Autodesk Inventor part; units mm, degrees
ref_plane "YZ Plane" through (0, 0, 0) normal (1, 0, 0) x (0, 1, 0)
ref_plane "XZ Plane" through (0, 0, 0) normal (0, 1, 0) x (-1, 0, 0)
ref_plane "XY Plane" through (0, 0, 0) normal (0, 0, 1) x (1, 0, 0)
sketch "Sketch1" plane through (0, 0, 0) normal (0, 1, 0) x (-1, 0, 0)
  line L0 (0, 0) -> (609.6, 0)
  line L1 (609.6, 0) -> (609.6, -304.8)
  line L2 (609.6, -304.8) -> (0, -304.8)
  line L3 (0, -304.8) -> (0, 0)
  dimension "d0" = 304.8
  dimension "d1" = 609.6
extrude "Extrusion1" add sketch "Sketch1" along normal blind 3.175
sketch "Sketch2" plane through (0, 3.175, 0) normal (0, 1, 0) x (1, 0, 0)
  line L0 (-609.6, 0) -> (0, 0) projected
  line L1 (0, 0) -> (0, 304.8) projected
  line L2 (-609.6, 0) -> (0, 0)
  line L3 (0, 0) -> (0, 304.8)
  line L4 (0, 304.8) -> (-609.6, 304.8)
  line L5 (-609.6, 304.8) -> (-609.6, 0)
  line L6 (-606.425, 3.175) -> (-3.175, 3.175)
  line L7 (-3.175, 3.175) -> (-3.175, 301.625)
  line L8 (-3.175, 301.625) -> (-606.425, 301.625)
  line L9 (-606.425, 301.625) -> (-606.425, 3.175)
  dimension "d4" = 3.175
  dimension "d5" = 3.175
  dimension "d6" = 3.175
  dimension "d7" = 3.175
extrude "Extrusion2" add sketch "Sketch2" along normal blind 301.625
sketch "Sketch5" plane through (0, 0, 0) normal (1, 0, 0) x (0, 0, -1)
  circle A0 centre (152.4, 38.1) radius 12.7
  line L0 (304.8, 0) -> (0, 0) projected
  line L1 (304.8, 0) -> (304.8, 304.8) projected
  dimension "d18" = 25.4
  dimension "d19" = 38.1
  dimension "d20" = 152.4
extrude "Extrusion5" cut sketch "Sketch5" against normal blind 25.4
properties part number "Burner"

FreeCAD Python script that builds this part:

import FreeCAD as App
import Part
import Sketcher

V = App.Vector
Q = App.Units.Quantity

doc = App.newDocument("Part")
body = doc.addObject("PartDesign::Body", "Body")

# Sketch on XZ plane
sketch1 = body.newObject("Sketcher::SketchObject", "Sketch")
sketch1.AttachmentSupport = (doc.getObject("XZ_Plane"), [""])
sketch1.MapMode = "FlatFace"
sketch1.addGeometry(Part.LineSegment(V(-609.6, 0, 0), V(0, 0, 0)), False)
sketch1.addGeometry(Part.LineSegment(V(0, 0, 0), V(0, -304.8, 0)), False)
sketch1.addGeometry(Part.LineSegment(V(0, -304.8, 0), V(-609.6, -304.8, 0)), False)
sketch1.addGeometry(Part.LineSegment(V(-609.6, -304.8, 0), V(-609.6, 0, 0)), False)
sketch1.addConstraint(Sketcher.Constraint("Coincident", 0, 2, 1, 1))
sketch1.addConstraint(Sketcher.Constraint("Coincident", 1, 2, 2, 1))
sketch1.addConstraint(Sketcher.Constraint("Coincident", 2, 2, 3, 1))
sketch1.addConstraint(Sketcher.Constraint("Coincident", 3, 2, 0, 1))
sketch1.addConstraint(Sketcher.Constraint("Horizontal", 0))
sketch1.addConstraint(Sketcher.Constraint("Vertical", 1))
sketch1.addConstraint(Sketcher.Constraint("Horizontal", 2))
sketch1.addConstraint(Sketcher.Constraint("Vertical", 3))
sketch1.addConstraint(Sketcher.Constraint("Coincident", 0, 2, -1, 1))
sketch1.addConstraint(Sketcher.Constraint("DistanceX", 0, 1, 0, 2, Q("24 in")))
sketch1.addConstraint(Sketcher.Constraint("DistanceY", 1, 2, 1, 1, Q("12 in")))
pad1 = body.newObject("PartDesign::Pad", "Pad")
pad1.Profile = sketch1
pad1.Length = Q("0.125 in")
pad1.Reversed = True

# Sketch on XZ plane
sketch2 = body.newObject("Sketcher::SketchObject", "Sketch001")
sketch2.AttachmentSupport = (doc.getObject("XZ_Plane"), [""])
sketch2.MapMode = "FlatFace"
sketch2.AttachmentOffset = App.Placement(V(0, 0, -0.125 * 25.4), App.Rotation())
sketch2.addGeometry(Part.LineSegment(V(-609.6, -304.8, 0), V(-609.6, 0, 0)), False)
sketch2.addGeometry(Part.LineSegment(V(-609.6, 0, 0), V(0, 0, 0)), False)
sketch2.addGeometry(Part.LineSegment(V(0, 0, 0), V(0, -304.8, 0)), False)
sketch2.addGeometry(Part.LineSegment(V(0, -304.8, 0), V(-609.6, -304.8, 0)), False)
sketch2.addGeometry(Part.LineSegment(V(-3.175, -3.175, 0), V(-606.425, -3.175, 0)), False)
sketch2.addGeometry(Part.LineSegment(V(-606.425, -3.175, 0), V(-606.425, -301.625, 0)), False)
sketch2.addGeometry(Part.LineSegment(V(-606.425, -301.625, 0), V(-3.175, -301.625, 0)), False)
sketch2.addGeometry(Part.LineSegment(V(-3.175, -301.625, 0), V(-3.175, -3.175, 0)), False)
sketch2.addConstraint(Sketcher.Constraint("Coincident", 0, 2, 1, 1))
sketch2.addConstraint(Sketcher.Constraint("Coincident", 1, 2, 2, 1))
sketch2.addConstraint(Sketcher.Constraint("Coincident", 2, 2, 3, 1))
sketch2.addConstraint(Sketcher.Constraint("Coincident", 3, 2, 0, 1))
sketch2.addConstraint(Sketcher.Constraint("Coincident", 4, 2, 5, 1))
sketch2.addConstraint(Sketcher.Constraint("Coincident", 5, 2, 6, 1))
sketch2.addConstraint(Sketcher.Constraint("Coincident", 6, 2, 7, 1))
sketch2.addConstraint(Sketcher.Constraint("Coincident", 7, 2, 4, 1))
sketch2.addConstraint(Sketcher.Constraint("Vertical", 0))
sketch2.addConstraint(Sketcher.Constraint("Horizontal", 1))
sketch2.addConstraint(Sketcher.Constraint("Vertical", 2))
sketch2.addConstraint(Sketcher.Constraint("Horizontal", 3))
sketch2.addConstraint(Sketcher.Constraint("Horizontal", 4))
sketch2.addConstraint(Sketcher.Constraint("Vertical", 5))
sketch2.addConstraint(Sketcher.Constraint("Horizontal", 6))
sketch2.addConstraint(Sketcher.Constraint("Vertical", 7))
sketch2.addConstraint(Sketcher.Constraint("Coincident", 1, 2, -1, 1))
sketch2.addConstraint(Sketcher.Constraint("DistanceX", 1, 1, 1, 2, Q("24 in")))
sketch2.addConstraint(Sketcher.Constraint("DistanceY", 0, 1, 0, 2, Q("12 in")))
sketch2.addConstraint(Sketcher.Constraint("DistanceY", 4, 2, -1, 1, Q("0.125 in")))
sketch2.addConstraint(Sketcher.Constraint("DistanceX", 6, 2, -1, 1, Q("0.125 in")))
sketch2.addConstraint(Sketcher.Constraint("DistanceX", 0, 2, 4, 2, Q("0.125 in")))
sketch2.addConstraint(Sketcher.Constraint("DistanceY", 3, 2, 5, 2, Q("0.125 in")))
pad2 = body.newObject("PartDesign::Pad", "Pad001")
pad2.Profile = sketch2
pad2.Length = Q("11.875 in")
pad2.Reversed = True

# Sketch on YZ plane
sketch3 = body.newObject("Sketcher::SketchObject", "Sketch002")
sketch3.AttachmentSupport = (doc.getObject("YZ_Plane"), [""])
sketch3.MapMode = "FlatFace"
sketch3.addGeometry(Part.Circle(V(38.1, -152.4, 0), V(0, 0, 1), 12.7), False)
sketch3.addConstraint(Sketcher.Constraint("Diameter", 0, Q("1 in")))
sketch3.addConstraint(Sketcher.Constraint("DistanceY", 0, 3, -1, 1, Q("6 in")))
sketch3.addConstraint(Sketcher.Constraint("DistanceX", -1, 1, 0, 3, Q("1.5 in")))
pocket1 = body.newObject("PartDesign::Pocket", "Pocket")
pocket1.Profile = sketch3
pocket1.Length = Q("1 in")

doc.recompute()
